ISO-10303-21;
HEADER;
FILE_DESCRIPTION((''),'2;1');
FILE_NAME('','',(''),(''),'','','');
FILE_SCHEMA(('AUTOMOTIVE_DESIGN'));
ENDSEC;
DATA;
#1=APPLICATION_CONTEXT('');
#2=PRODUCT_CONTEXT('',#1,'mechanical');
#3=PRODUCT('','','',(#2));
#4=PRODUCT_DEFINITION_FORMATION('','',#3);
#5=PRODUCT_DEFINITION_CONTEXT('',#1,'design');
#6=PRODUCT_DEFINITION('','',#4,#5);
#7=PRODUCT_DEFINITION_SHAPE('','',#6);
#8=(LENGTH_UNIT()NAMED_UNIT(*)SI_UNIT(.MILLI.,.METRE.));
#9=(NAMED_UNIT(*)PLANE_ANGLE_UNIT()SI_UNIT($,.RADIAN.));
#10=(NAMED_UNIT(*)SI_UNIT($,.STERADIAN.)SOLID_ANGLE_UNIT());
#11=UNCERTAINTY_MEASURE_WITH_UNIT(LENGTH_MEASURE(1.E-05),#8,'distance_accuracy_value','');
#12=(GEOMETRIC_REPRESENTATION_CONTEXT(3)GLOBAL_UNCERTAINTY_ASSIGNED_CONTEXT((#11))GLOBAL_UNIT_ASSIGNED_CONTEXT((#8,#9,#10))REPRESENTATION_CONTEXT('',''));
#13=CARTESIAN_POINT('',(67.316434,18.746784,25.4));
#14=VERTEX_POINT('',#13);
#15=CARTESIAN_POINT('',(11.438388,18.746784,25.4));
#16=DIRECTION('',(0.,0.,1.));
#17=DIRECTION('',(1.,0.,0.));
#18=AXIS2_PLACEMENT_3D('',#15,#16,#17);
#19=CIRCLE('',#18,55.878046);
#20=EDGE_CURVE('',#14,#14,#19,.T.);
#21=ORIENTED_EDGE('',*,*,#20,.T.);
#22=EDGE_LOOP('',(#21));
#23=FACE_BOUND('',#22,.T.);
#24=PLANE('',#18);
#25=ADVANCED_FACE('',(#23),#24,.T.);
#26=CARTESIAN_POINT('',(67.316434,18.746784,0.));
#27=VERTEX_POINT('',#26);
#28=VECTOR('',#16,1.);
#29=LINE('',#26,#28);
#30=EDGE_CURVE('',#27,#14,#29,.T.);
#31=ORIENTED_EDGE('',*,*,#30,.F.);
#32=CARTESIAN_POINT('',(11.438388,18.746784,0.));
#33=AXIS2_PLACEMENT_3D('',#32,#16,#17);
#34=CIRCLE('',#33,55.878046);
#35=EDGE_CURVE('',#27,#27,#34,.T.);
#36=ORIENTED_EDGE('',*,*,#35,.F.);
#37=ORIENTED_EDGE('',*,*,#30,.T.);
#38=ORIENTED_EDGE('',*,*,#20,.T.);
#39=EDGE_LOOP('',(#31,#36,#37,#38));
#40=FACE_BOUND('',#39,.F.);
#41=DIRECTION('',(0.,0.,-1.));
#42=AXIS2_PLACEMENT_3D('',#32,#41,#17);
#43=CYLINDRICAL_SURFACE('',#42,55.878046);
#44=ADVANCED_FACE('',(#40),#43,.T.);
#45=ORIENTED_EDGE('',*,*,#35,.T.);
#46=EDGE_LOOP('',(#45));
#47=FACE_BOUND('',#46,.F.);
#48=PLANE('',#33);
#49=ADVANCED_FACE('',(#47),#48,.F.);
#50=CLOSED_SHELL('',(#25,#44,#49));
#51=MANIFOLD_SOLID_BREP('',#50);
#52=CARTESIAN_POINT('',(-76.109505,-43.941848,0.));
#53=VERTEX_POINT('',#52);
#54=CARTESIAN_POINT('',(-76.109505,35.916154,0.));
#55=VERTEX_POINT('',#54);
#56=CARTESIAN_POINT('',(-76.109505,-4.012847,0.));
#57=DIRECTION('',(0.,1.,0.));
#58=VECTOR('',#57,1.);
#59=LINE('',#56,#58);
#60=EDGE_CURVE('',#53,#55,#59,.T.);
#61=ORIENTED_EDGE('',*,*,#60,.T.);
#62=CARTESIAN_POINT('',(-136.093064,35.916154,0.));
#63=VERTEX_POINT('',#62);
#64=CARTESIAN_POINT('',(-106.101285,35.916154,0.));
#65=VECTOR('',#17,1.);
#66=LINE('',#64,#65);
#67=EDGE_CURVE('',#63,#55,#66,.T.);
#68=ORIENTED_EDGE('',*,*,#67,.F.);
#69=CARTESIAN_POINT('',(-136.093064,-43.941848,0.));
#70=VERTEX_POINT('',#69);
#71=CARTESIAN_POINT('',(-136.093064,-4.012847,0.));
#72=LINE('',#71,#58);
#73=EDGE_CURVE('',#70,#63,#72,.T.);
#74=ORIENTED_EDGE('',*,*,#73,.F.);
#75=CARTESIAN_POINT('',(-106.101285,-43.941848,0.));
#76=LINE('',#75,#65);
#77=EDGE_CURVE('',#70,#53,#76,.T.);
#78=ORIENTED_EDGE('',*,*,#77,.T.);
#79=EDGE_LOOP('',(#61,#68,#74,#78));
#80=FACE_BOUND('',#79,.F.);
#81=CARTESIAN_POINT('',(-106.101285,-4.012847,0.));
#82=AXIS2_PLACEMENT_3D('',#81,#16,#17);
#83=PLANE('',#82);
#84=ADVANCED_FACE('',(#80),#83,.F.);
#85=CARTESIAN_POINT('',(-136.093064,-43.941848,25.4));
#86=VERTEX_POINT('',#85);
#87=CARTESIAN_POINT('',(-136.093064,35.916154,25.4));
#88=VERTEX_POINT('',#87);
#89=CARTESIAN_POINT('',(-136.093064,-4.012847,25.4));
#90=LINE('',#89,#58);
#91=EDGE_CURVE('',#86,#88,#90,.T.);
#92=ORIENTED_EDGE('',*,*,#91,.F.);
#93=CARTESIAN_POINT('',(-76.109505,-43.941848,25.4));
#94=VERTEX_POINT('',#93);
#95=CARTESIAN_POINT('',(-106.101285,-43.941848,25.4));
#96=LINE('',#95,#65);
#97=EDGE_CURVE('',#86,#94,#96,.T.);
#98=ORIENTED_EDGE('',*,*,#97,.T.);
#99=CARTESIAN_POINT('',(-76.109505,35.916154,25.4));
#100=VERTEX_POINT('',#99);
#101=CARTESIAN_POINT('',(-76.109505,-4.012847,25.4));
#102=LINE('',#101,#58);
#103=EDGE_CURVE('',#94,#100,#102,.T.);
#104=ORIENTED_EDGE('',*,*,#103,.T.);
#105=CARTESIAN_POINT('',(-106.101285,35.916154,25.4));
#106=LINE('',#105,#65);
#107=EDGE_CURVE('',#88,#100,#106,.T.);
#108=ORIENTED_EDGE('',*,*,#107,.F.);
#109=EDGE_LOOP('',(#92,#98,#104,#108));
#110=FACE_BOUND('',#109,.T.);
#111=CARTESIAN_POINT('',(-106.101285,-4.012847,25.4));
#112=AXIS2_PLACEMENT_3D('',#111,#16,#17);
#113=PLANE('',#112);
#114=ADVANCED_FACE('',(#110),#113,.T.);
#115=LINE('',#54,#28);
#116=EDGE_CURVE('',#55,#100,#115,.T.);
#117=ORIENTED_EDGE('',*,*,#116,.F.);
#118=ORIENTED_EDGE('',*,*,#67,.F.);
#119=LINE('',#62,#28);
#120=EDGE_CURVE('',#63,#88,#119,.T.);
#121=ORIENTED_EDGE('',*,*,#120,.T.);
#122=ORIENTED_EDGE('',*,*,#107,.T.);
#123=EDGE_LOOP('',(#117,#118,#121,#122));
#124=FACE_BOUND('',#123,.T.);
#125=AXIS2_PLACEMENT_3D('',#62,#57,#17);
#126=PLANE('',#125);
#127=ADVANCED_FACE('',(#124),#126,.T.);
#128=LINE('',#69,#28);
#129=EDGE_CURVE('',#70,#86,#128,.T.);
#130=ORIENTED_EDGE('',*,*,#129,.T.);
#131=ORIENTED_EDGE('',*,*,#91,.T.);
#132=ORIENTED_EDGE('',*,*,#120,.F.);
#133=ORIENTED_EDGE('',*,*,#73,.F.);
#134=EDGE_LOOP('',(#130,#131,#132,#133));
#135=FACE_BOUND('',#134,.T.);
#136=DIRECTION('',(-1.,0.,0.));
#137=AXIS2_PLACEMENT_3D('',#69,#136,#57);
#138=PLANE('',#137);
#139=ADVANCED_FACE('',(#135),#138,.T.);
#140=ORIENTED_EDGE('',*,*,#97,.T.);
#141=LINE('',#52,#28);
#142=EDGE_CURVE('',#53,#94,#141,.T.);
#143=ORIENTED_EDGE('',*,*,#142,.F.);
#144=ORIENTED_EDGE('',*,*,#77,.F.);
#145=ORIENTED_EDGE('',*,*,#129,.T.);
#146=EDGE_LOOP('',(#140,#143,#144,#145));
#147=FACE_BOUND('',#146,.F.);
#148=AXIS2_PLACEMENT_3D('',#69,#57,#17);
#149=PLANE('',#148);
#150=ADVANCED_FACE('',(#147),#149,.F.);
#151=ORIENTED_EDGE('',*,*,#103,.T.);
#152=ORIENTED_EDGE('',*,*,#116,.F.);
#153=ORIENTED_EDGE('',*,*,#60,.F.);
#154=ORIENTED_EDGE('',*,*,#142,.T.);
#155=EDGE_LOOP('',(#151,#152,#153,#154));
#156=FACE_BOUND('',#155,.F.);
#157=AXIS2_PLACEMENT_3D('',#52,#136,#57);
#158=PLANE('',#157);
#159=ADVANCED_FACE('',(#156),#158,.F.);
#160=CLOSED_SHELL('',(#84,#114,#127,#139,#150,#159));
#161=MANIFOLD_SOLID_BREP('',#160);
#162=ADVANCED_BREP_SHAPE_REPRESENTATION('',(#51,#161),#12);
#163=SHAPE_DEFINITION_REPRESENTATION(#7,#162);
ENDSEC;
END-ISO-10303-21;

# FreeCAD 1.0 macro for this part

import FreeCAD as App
import Part
import Sketcher
from FreeCAD import Vector
Q = App.Units.Quantity

doc = App.newDocument("Part")
body = doc.addObject("PartDesign::Body", "Body")
body.AllowCompound = True

sketch1 = doc.addObject("Sketcher::SketchObject", "Sketch")
body.addObject(sketch1)
sketch1.AttachmentSupport = (doc.XY_Plane, [""])
sketch1.MapMode = "FlatFace"
sketch1.addGeometry([
    Part.LineSegment(Vector(-136.093064, 35.916154, 0), Vector(-136.093064, -43.941848, 0)),
    Part.LineSegment(Vector(-136.093064, -43.941848, 0), Vector(-76.109505, -43.941848, 0)),
    Part.LineSegment(Vector(-76.109505, -43.941848, 0), Vector(-76.109505, 35.916154, 0)),
    Part.LineSegment(Vector(-76.109505, 35.916154, 0), Vector(-136.093064, 35.916154, 0)),
    Part.Circle(Vector(11.438388, 18.746784, 0), Vector(0, 0, 1), 55.878046),
], False)
sketch1.addConstraint([
    Sketcher.Constraint("Coincident", 0, 2, 1, 1),
    Sketcher.Constraint("Coincident", 1, 2, 2, 1),
    Sketcher.Constraint("Coincident", 2, 2, 3, 1),
    Sketcher.Constraint("Coincident", 3, 2, 0, 1),
    Sketcher.Constraint("Vertical", 0),
    Sketcher.Constraint("Horizontal", 1),
    Sketcher.Constraint("Vertical", 2),
    Sketcher.Constraint("Horizontal", 3),
    Sketcher.Constraint("Diameter", 4, Q("111.756092 mm")),
    Sketcher.Constraint("DistanceY", 0, 2, 0, 1, Q("79.858001 mm")),
    Sketcher.Constraint("DistanceX", 1, 1, 1, 2, Q("59.983559 mm")),
    Sketcher.Constraint("DistanceY", 0, 2, 4, 3, Q("62.688631 mm")),
    Sketcher.Constraint("DistanceX", -1, 1, 4, 3, Q("11.438388 mm")),
    Sketcher.Constraint("DistanceY", -1, 1, 4, 3, Q("18.746784 mm")),
    Sketcher.Constraint("DistanceX", 0, 2, -1, 1, Q("136.093064 mm")),
])
pad1 = doc.addObject("PartDesign::Pad", "Pad")
body.addObject(pad1)
pad1.Profile = sketch1
pad1.Length = Q("1 in")

doc.recompute()
